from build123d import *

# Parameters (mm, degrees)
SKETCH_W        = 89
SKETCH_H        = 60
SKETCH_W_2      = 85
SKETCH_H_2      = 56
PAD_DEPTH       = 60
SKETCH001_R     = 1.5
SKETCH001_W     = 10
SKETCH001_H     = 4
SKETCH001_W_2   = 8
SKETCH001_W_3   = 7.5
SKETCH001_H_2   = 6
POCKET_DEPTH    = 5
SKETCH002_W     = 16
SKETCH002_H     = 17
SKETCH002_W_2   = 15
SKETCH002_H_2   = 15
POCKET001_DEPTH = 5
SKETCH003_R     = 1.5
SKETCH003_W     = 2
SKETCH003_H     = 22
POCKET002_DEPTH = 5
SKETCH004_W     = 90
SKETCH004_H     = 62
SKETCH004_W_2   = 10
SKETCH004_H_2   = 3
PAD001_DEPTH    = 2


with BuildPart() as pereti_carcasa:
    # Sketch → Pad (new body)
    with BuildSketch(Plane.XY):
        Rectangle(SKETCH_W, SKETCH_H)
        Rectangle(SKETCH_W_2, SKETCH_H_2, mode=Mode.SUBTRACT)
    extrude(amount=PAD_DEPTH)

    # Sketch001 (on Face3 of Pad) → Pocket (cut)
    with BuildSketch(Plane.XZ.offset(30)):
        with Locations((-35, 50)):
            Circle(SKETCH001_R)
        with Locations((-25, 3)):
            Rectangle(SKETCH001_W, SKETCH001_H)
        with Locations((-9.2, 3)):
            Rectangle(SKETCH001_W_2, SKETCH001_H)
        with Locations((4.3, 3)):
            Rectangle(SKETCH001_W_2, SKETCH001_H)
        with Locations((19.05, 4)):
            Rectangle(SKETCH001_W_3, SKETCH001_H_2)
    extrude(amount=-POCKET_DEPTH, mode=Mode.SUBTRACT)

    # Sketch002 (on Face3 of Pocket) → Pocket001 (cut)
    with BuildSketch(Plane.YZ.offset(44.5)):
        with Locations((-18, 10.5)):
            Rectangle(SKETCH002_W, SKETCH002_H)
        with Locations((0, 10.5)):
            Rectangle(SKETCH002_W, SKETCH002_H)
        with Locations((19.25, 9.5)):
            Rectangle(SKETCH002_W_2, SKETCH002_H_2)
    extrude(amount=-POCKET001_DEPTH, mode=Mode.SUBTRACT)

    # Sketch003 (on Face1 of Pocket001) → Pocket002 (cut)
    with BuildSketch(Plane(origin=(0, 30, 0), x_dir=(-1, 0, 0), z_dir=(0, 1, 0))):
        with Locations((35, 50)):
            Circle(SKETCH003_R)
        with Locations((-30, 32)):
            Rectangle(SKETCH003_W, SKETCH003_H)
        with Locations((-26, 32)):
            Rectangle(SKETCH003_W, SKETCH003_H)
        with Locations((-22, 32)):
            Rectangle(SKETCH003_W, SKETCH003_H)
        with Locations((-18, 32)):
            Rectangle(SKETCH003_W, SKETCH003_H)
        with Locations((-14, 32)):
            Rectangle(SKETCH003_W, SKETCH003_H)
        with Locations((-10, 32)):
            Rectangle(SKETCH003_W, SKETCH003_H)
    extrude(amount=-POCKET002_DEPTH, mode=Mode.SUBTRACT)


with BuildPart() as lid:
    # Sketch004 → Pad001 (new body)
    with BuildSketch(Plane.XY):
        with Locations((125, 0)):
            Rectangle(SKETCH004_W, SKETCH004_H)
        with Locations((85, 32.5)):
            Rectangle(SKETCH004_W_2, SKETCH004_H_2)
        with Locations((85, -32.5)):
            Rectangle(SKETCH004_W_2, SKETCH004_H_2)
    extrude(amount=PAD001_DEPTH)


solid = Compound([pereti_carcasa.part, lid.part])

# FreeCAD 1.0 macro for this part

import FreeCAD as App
import Part
import Sketcher

V = App.Vector


def add_polygon(sketch, points):
    """Adds a closed chain of lines whose ends are joined by coincident constraints."""
    first, n = sketch.GeometryCount, len(points)
    for a, b in zip(points, points[1:] + points[:1]):
        sketch.addGeometry(Part.LineSegment(App.Vector(*a, 0), App.Vector(*b, 0)), False)
    for i in range(n):
        sketch.addConstraint(Sketcher.Constraint("Coincident", first + i, 2, first + (i + 1) % n, 1))

doc = App.newDocument("Part")
body = doc.addObject("PartDesign::Body", "Body")

sketch1 = body.newObject("Sketcher::SketchObject", "Sketch")
sketch1.AttachmentSupport = (doc.getObject("XY_Plane"), [""])
sketch1.MapMode = "FlatFace"
add_polygon(sketch1, [(-44.5, 30), (-44.5, -30), (44.5, -30), (44.5, 30)])
add_polygon(sketch1, [(42.5, -28), (-42.5, -28), (-42.5, 28), (42.5, 28)])
sketch1.addConstraint([
    Sketcher.Constraint("Vertical", 0),
    Sketcher.Constraint("Horizontal", 1),
    Sketcher.Constraint("Vertical", 2),
    Sketcher.Constraint("Horizontal", 3),
    Sketcher.Constraint("Horizontal", 4),
    Sketcher.Constraint("Vertical", 5),
    Sketcher.Constraint("Horizontal", 6),
    Sketcher.Constraint("Vertical", 7),
    Sketcher.Constraint("Symmetric", 0, 2, 2, 2, -1, 1),
    Sketcher.Constraint("Symmetric", 4, 2, 6, 2, -1, 1),
    Sketcher.Constraint("DistanceX", 1, 1, 1, 2, 89.0),
    Sketcher.Constraint("DistanceX", 4, 2, 4, 1, 85.0),
    Sketcher.Constraint("DistanceY", 0, 2, 0, 1, 60.0),
    Sketcher.Constraint("DistanceY", 5, 1, 5, 2, 56.0),
])
pad1 = body.newObject("PartDesign::Pad", "Pad")
pad1.Profile = sketch1
pad1.Length = 60

sketch2 = body.newObject("Sketcher::SketchObject", "Sketch001")
sketch2.AttachmentSupport = (doc.getObject("XZ_Plane"), [""])
sketch2.MapMode = "FlatFace"
sketch2.AttachmentOffset = App.Placement(V(0, 0, 30), App.Rotation())
sketch2.addGeometry(Part.Circle(V(-35, 50, 0), V(0, 0, 1), 1.5), False)
add_polygon(sketch2, [(-30, 5), (-30, 1), (-20, 1), (-20, 5)])
add_polygon(sketch2, [(-13.2, 5), (-13.2, 1), (-5.2, 1), (-5.2, 5)])
add_polygon(sketch2, [(0.3, 5), (0.3, 1), (8.3, 1), (8.3, 5)])
add_polygon(sketch2, [(15.3, 7), (15.3, 1), (22.8, 1), (22.8, 7)])
sketch2.addConstraint([
    Sketcher.Constraint("Vertical", 1),
    Sketcher.Constraint("Horizontal", 2),
    Sketcher.Constraint("Vertical", 3),
    Sketcher.Constraint("Horizontal", 4),
    Sketcher.Constraint("Vertical", 5),
    Sketcher.Constraint("Horizontal", 6),
    Sketcher.Constraint("Vertical", 7),
    Sketcher.Constraint("Horizontal", 8),
    Sketcher.Constraint("Vertical", 9),
    Sketcher.Constraint("Horizontal", 10),
    Sketcher.Constraint("Vertical", 11),
    Sketcher.Constraint("Horizontal", 12),
    Sketcher.Constraint("Vertical", 13),
    Sketcher.Constraint("Horizontal", 14),
    Sketcher.Constraint("Vertical", 15),
    Sketcher.Constraint("Horizontal", 16),
    Sketcher.Constraint("Horizontal", 2, 2, 5, 2),
    Sketcher.Constraint("Horizontal", 4, 2, 7, 2),
    Sketcher.Constraint("Horizontal", 6, 2, 9, 2),
    Sketcher.Constraint("Horizontal", 8, 2, 11, 2),
    Sketcher.Constraint("Horizontal", 10, 2, 13, 2),
    Sketcher.Constraint("Equal", 8, 10),
    Sketcher.Constraint("Diameter", 0, 3.0),
    Sketcher.Constraint("DistanceX", 2, 1, 2, 2, 10.0),
    Sketcher.Constraint("DistanceX", 6, 1, 6, 2, 8.0),
    Sketcher.Constraint("DistanceY", 1, 2, 1, 1, 4.0),
    Sketcher.Constraint("DistanceY", 13, 2, 13, 1, 6.0),
    Sketcher.Constraint("DistanceX", 14, 1, 14, 2, 7.5),
    Sketcher.Constraint("DistanceX", 0, 3, -1, 1, 35.0),
    Sketcher.Constraint("DistanceY", -1, 1, 0, 3, 50.0),
    Sketcher.Constraint("DistanceX", 1, 2, -1, 1, 30.0),
    Sketcher.Constraint("DistanceY", -1, 1, 1, 2, 1.0),
    Sketcher.Constraint("DistanceX", 10, 2, 13, 2, 7.0),
    Sketcher.Constraint("DistanceX", 5, 2, -1, 1, 13.2),
    Sketcher.Constraint("DistanceX", -1, 1, 9, 2, 0.3),
])
pocket1 = body.newObject("PartDesign::Pocket", "Pocket")
pocket1.Profile = sketch2
pocket1.Length = 5

sketch3 = body.newObject("Sketcher::SketchObject", "Sketch002")
sketch3.AttachmentSupport = (doc.getObject("YZ_Plane"), [""])
sketch3.MapMode = "FlatFace"
sketch3.AttachmentOffset = App.Placement(V(0, 0, 44.5), App.Rotation())
add_polygon(sketch3, [(-26, 19), (-26, 2), (-10, 2), (-10, 19)])
add_polygon(sketch3, [(-8, 19), (-8, 2), (8, 2), (8, 19)])
add_polygon(sketch3, [(11.75, 17), (11.75, 2), (26.75, 2), (26.75, 17)])
sketch3.addConstraint([
    Sketcher.Constraint("Vertical", 0),
    Sketcher.Constraint("Horizontal", 1),
    Sketcher.Constraint("Vertical", 2),
    Sketcher.Constraint("Horizontal", 3),
    Sketcher.Constraint("Vertical", 4),
    Sketcher.Constraint("Horizontal", 5),
    Sketcher.Constraint("Vertical", 6),
    Sketcher.Constraint("Horizontal", 7),
    Sketcher.Constraint("Vertical", 8),
    Sketcher.Constraint("Horizontal", 9),
    Sketcher.Constraint("Vertical", 10),
    Sketcher.Constraint("Horizontal", 11),
    Sketcher.Constraint("Horizontal", 1, 2, 4, 2),
    Sketcher.Constraint("Horizontal", 3, 2, 6, 2),
    Sketcher.Constraint("Horizontal", 5, 2, 8, 2),
    Sketcher.Constraint("Equal", 3, 5),
    Sketcher.Constraint("Equal", 11, 8),
    Sketcher.Constraint("DistanceX", 1, 1, 1, 2, 16.0),
    Sketcher.Constraint("DistanceX", 9, 1, 9, 2, 15.0),
    Sketcher.Constraint("DistanceY", 0, 2, 0, 1, 17.0),
    Sketcher.Constraint("DistanceX", 0, 2, -1, 1, 26.0),
    Sketcher.Constraint("DistanceY", -1, 1, 0, 2, 2.0),
    Sketcher.Constraint("DistanceX", 4, 2, -1, 1, 8.0),
    Sketcher.Constraint("DistanceX", -1, 1, 8, 2, 11.75),
])
pocket2 = body.newObject("PartDesign::Pocket", "Pocket001")
pocket2.Profile = sketch3
pocket2.Length = 5

sketch4 = body.newObject("Sketcher::SketchObject", "Sketch003")
sketch4.AttachmentSupport = (doc.getObject("XZ_Plane"), [""])
sketch4.MapMode = "FlatFace"
sketch4.AttachmentOffset = App.Placement(V(0, 0, -30), App.Rotation())
sketch4.addGeometry(Part.Circle(V(-35, 50, 0), V(0, 0, 1), 1.5), False)
add_polygon(sketch4, [(31, 43), (31, 21), (29, 21), (29, 43)])
add_polygon(sketch4, [(27, 43), (27, 21), (25, 21), (25, 43)])
add_polygon(sketch4, [(23, 43), (23, 21), (21, 21), (21, 43)])
add_polygon(sketch4, [(19, 43), (19, 21), (17, 21), (17, 43)])
add_polygon(sketch4, [(15, 43), (15, 21), (13, 21), (13, 43)])
add_polygon(sketch4, [(11, 43), (11, 21), (9, 21), (9, 43)])
sketch4.addConstraint([
    Sketcher.Constraint("Vertical", 1),
    Sketcher.Constraint("Horizontal", 2),
    Sketcher.Constraint("Vertical", 3),
    Sketcher.Constraint("Horizontal", 4),
    Sketcher.Constraint("Vertical", 5),
    Sketcher.Constraint("Horizontal", 6),
    Sketcher.Constraint("Vertical", 7),
    Sketcher.Constraint("Horizontal", 8),
    Sketcher.Constraint("Vertical", 9),
    Sketcher.Constraint("Horizontal", 10),
    Sketcher.Constraint("Vertical", 11),
    Sketcher.Constraint("Horizontal", 12),
    Sketcher.Constraint("Vertical", 13),
    Sketcher.Constraint("Horizontal", 14),
    Sketcher.Constraint("Vertical", 15),
    Sketcher.Constraint("Horizontal", 16),
    Sketcher.Constraint("Vertical", 17),
    Sketcher.Constraint("Horizontal", 18),
    Sketcher.Constraint("Vertical", 19),
    Sketcher.Constraint("Horizontal", 20),
    Sketcher.Constraint("Vertical", 21),
    Sketcher.Constraint("Horizontal", 22),
    Sketcher.Constraint("Vertical", 23),
    Sketcher.Constraint("Horizontal", 24),
    Sketcher.Constraint("Horizontal", 2, 2, 5, 2),
    Sketcher.Constraint("Horizontal", 4, 2, 7, 2),
    Sketcher.Constraint("Horizontal", 6, 2, 9, 2),
    Sketcher.Constraint("Horizontal", 8, 2, 11, 2),
    Sketcher.Constraint("Horizontal", 10, 2, 13, 2),
    Sketcher.Constraint("Horizontal", 12, 2, 15, 2),
    Sketcher.Constraint("Horizontal", 14, 2, 17, 2),
    Sketcher.Constraint("Horizontal", 16, 2, 19, 2),
    Sketcher.Constraint("Horizontal", 18, 2, 21, 2),
    Sketcher.Constraint("Horizontal", 20, 2, 23, 2),
    Sketcher.Constraint("Equal", 4, 6),
    Sketcher.Constraint("Equal", 8, 10),
    Sketcher.Constraint("Equal", 12, 14),
    Sketcher.Constraint("Equal", 16, 18),
    Sketcher.Constraint("Equal", 20, 22),
    Sketcher.Constraint("Diameter", 0, 3.0),
    Sketcher.Constraint("DistanceX", 2, 2, 2, 1, 2.0),
    Sketcher.Constraint("DistanceY", 1, 2, 1, 1, 22.0),
    Sketcher.Constraint("DistanceX", 0, 3, -1, 1, 35.0),
    Sketcher.Constraint("DistanceY", -1, 1, 0, 3, 50.0),
    Sketcher.Constraint("DistanceX", -1, 1, 1, 2, 31.0),
    Sketcher.Constraint("DistanceY", -1, 1, 1, 2, 21.0),
    Sketcher.Constraint("DistanceX", -1, 1, 5, 2, 27.0),
    Sketcher.Constraint("DistanceX", -1, 1, 9, 2, 23.0),
    Sketcher.Constraint("DistanceX", -1, 1, 13, 2, 19.0),
    Sketcher.Constraint("DistanceX", -1, 1, 17, 2, 15.0),
    Sketcher.Constraint("DistanceX", -1, 1, 21, 2, 11.0),
])
pocket3 = body.newObject("PartDesign::Pocket", "Pocket002")
pocket3.Profile = sketch4
pocket3.Length = 5
pocket3.Reversed = True
body2 = doc.addObject("PartDesign::Body", "Body001")

sketch5 = body2.newObject("Sketcher::SketchObject", "Sketch004")
sketch5.AttachmentSupport = (doc.getObject("XY_Plane001"), [""])
sketch5.MapMode = "FlatFace"
add_polygon(sketch5, [(90, -31), (170, -31), (170, 31), (90, 31), (90, 34), (80, 34), (80, -34), (90, -34)])
sketch5.addConstraint([
    Sketcher.Constraint("Horizontal", 0),
    Sketcher.Constraint("Vertical", 1),
    Sketcher.Constraint("Horizontal", 2),
    Sketcher.Constraint("Vertical", 3),
    Sketcher.Constraint("Horizontal", 4),
    Sketcher.Constraint("Vertical", 5),
    Sketcher.Constraint("Horizontal", 6),
    Sketcher.Constraint("Vertical", 7),
    Sketcher.Constraint("Symmetric", 3, 2, 6, 2, -1),
    Sketcher.Constraint("Equal", 3, 7),
    Sketcher.Constraint("DistanceX", 0, 1, 0, 2, 80.0),
    Sketcher.Constraint("DistanceX", 4, 2, 4, 1, 10.0),
    Sketcher.Constraint("DistanceY", 1, 1, 1, 2, 62.0),
    Sketcher.Constraint("DistanceY", 3, 1, 3, 2, 3.0),
    Sketcher.Constraint("DistanceX", -1, 1, 0, 2, 170.0),
])
pad2 = body2.newObject("PartDesign::Pad", "Pad001")
pad2.Profile = sketch5
pad2.Length = 2

doc.recompute()
